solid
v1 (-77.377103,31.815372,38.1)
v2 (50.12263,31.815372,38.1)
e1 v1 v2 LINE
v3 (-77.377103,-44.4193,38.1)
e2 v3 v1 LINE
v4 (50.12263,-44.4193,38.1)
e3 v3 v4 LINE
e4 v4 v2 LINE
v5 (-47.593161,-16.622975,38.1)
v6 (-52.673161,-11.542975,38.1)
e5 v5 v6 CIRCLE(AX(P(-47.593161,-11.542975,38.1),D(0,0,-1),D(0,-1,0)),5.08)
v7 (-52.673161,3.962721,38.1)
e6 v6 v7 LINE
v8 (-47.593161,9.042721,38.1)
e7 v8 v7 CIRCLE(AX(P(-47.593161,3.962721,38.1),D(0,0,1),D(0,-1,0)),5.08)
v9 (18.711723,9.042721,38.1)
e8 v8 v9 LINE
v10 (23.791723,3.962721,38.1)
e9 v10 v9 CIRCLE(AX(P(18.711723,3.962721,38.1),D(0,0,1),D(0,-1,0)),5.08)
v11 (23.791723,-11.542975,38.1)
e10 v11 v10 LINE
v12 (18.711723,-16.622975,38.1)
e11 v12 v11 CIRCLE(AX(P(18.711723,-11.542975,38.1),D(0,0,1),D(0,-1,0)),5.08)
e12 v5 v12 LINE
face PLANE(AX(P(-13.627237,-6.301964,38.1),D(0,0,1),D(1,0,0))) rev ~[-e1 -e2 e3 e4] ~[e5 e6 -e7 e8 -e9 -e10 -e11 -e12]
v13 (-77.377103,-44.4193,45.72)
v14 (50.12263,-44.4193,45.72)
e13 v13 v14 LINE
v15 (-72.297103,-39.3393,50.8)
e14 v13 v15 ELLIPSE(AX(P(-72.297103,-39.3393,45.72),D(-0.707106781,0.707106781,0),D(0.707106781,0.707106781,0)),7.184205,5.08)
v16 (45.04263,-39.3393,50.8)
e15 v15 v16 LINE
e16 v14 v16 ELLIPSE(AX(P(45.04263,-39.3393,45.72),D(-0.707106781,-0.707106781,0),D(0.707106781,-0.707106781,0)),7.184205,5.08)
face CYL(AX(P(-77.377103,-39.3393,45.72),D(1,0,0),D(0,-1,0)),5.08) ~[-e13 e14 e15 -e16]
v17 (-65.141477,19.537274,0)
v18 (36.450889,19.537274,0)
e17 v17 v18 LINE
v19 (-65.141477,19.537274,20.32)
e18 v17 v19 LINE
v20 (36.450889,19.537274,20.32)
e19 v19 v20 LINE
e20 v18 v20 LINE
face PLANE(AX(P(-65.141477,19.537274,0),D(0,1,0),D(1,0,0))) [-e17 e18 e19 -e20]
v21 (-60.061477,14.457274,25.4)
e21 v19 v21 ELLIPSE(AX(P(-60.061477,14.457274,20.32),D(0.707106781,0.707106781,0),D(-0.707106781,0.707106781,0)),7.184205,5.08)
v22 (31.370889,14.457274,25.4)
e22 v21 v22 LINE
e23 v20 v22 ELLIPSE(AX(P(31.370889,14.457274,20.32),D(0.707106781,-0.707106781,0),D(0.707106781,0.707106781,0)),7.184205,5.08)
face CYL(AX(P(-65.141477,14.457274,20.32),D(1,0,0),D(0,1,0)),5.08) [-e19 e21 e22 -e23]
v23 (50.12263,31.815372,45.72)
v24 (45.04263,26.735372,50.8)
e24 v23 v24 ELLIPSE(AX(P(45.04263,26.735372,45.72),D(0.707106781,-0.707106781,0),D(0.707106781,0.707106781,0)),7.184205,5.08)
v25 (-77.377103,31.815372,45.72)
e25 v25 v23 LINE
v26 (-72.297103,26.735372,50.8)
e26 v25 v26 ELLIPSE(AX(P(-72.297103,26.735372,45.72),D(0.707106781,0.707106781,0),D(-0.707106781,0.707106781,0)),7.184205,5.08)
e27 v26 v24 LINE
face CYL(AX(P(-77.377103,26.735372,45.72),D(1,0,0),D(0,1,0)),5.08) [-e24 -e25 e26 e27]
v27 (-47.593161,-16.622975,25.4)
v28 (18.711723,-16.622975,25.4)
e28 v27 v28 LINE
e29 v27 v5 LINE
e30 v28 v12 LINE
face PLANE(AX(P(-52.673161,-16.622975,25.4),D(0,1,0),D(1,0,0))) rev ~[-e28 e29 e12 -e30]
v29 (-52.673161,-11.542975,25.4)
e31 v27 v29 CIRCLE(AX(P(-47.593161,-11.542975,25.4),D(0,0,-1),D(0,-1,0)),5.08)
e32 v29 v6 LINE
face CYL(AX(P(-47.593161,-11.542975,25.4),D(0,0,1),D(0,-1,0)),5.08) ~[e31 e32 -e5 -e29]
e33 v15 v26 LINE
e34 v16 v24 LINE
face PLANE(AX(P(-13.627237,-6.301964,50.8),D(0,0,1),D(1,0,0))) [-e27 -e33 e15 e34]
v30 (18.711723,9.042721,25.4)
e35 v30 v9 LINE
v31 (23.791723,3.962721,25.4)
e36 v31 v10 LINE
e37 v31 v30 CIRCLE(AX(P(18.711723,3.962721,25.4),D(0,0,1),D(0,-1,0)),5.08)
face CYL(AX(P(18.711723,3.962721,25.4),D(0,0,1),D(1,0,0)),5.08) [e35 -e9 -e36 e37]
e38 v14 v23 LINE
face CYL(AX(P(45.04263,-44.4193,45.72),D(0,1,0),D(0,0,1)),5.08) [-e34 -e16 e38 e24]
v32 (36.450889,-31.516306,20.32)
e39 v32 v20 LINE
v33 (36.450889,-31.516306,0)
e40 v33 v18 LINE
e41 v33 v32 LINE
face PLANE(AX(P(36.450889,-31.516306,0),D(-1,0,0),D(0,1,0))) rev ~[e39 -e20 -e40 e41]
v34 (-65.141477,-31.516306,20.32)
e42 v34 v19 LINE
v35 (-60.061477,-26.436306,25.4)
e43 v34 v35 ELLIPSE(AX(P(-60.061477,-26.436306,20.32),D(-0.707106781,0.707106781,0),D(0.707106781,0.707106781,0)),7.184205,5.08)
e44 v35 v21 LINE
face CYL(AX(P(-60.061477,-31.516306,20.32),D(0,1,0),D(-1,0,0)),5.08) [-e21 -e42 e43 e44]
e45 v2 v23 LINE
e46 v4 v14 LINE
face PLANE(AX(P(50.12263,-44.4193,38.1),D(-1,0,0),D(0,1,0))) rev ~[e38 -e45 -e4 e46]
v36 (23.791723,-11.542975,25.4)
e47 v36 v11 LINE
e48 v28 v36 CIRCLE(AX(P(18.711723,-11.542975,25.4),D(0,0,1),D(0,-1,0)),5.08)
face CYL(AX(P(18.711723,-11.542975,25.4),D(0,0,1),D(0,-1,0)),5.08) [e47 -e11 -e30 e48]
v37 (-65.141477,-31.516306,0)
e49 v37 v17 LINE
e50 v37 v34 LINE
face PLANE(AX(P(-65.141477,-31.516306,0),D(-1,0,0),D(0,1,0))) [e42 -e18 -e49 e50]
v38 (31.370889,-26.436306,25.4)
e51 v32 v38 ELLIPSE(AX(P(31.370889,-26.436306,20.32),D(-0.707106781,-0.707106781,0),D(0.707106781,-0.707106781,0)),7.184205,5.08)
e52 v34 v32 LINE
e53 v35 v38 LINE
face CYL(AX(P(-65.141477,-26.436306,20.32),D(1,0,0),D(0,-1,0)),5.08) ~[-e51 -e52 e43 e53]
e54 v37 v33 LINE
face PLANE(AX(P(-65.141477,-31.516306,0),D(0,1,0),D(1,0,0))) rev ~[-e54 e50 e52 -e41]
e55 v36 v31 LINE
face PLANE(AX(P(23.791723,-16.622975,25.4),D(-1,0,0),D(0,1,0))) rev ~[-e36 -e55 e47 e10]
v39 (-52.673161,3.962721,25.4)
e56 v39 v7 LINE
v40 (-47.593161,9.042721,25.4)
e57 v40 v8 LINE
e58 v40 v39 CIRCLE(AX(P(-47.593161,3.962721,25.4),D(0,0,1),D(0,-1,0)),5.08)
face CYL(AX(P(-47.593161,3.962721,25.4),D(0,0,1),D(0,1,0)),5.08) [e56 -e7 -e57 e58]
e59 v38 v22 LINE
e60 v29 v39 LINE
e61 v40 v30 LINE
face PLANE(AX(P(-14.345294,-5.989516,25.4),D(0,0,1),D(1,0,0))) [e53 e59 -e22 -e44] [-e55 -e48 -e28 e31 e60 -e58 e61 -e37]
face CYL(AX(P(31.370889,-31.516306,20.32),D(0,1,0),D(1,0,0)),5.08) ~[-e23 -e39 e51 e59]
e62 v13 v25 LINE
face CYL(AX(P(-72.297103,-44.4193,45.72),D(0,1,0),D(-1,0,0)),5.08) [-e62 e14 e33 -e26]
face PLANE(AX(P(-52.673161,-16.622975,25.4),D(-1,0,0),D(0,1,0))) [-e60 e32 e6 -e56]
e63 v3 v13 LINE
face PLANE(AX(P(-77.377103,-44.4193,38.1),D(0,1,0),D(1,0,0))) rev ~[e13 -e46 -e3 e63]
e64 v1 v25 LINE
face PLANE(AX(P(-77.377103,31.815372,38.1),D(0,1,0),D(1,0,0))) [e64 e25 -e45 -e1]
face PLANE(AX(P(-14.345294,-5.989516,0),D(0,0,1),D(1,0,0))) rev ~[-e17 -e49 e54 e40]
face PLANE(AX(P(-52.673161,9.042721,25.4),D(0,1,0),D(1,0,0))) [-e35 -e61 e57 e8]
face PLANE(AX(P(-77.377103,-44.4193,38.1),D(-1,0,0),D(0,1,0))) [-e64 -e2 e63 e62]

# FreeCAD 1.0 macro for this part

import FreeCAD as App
import Part
import Sketcher
Q = App.Units.Quantity


def edges_at(feature, points):
    """Names of the edges that pass closest to the given points."""
    edges = feature.Shape.Edges
    near = lambda p: min(range(len(edges)), key=lambda i: edges[i].distToShape(Part.Vertex(*p))[0])
    return sorted({f"Edge{near(p) + 1}" for p in points})


def add_polygon(sketch, points):
    """Adds a closed chain of lines whose ends are joined by coincident constraints."""
    first, n = sketch.GeometryCount, len(points)
    for a, b in zip(points, points[1:] + points[:1]):
        sketch.addGeometry(Part.LineSegment(App.Vector(*a, 0), App.Vector(*b, 0)), False)
    for i in range(n):
        sketch.addConstraint(Sketcher.Constraint("Coincident", first + i, 2, first + (i + 1) % n, 1))

doc = App.newDocument("Part")
body = doc.addObject("PartDesign::Body", "Body")

# Sketch on XY plane
sketch1 = doc.addObject("Sketcher::SketchObject", "Sketch")
body.addObject(sketch1)
sketch1.AttachmentSupport = (doc.XY_Plane, [""])
sketch1.MapMode = "FlatFace"
add_polygon(sketch1, [(-65, 20), (-65, -32), (36, -32), (36, 20)])  # lines 0-3
sketch1.addConstraint(Sketcher.Constraint("Vertical", 0))
sketch1.addConstraint(Sketcher.Constraint("Horizontal", 1))
sketch1.addConstraint(Sketcher.Constraint("Vertical", 2))
sketch1.addConstraint(Sketcher.Constraint("Horizontal", 3))
sketch1.addConstraint(Sketcher.Constraint("DistanceY", 0, 2, 0, 1, 51.05358))
sketch1.addConstraint(Sketcher.Constraint("DistanceX", 1, 1, 1, 2, 101.592366))
sketch1.addConstraint(Sketcher.Constraint("DistanceX", -1, 1, 1, 2, 36.450889))
sketch1.addConstraint(Sketcher.Constraint("DistanceY", 0, 2, -1, 1, 31.516306))
pad1 = doc.addObject("PartDesign::Pad", "Pad")
body.addObject(pad1)
pad1.Profile = sketch1
pad1.Length = Q("1 in")
doc.recompute()

fillet = doc.addObject("PartDesign::Fillet", "Fillet")
body.addObject(fillet)
fillet.Base = (pad1, edges_at(pad1, [
    (-14.345, -31.516, 25.4),
    (-65.141, -5.99, 25.4),
    (-14.345, 19.537, 25.4),
    (36.451, -5.99, 25.4),
]))
fillet.Radius = Q("0.2 in")

# Sketch on XY plane
sketch2 = doc.addObject("Sketcher::SketchObject", "Sketch001")
body.addObject(sketch2)
sketch2.AttachmentSupport = (doc.XY_Plane, [""])
sketch2.MapMode = "FlatFace"
sketch2.AttachmentOffset = App.Placement(App.Vector(0, 0, 1 * 25.4), App.Rotation())
add_polygon(sketch2, [(-53, 9), (-53, -17), (24, -17), (24, 9)])  # lines 0-3
sketch2.addConstraint(Sketcher.Constraint("Vertical", 0))
sketch2.addConstraint(Sketcher.Constraint("Horizontal", 1))
sketch2.addConstraint(Sketcher.Constraint("Vertical", 2))
sketch2.addConstraint(Sketcher.Constraint("Horizontal", 3))
sketch2.addConstraint(Sketcher.Constraint("DistanceX", 1, 1, 1, 2, 76.464884))
sketch2.addConstraint(Sketcher.Constraint("DistanceY", 0, 2, 0, 1, 25.665697))
sketch2.addConstraint(Sketcher.Constraint("DistanceX", 0, 2, -1, 1, 52.673161))
sketch2.addConstraint(Sketcher.Constraint("DistanceY", -1, 1, 2, 2, 9.042721))
pad2 = doc.addObject("PartDesign::Pad", "Pad001")
body.addObject(pad2)
pad2.Profile = sketch2
pad2.Length = Q("0.5 in")
doc.recompute()

fillet2 = doc.addObject("PartDesign::Fillet", "Fillet001")
body.addObject(fillet2)
fillet2.Base = (pad2, edges_at(pad2, [
    (-52.673, -16.623, 31.75),
    (23.792, -16.623, 31.75),
    (-52.673, 9.043, 31.75),
    (23.792, 9.043, 31.75),
]))
fillet2.Radius = Q("0.2 in")

# Sketch on XY plane
sketch3 = doc.addObject("Sketcher::SketchObject", "Sketch002")
body.addObject(sketch3)
sketch3.AttachmentSupport = (doc.XY_Plane, [""])
sketch3.MapMode = "FlatFace"
sketch3.AttachmentOffset = App.Placement(App.Vector(0, 0, 1.5 * 25.4), App.Rotation())
add_polygon(sketch3, [(-77, 32), (-77, -44), (50, -44), (50, 32)])  # lines 0-3
sketch3.addConstraint(Sketcher.Constraint("Vertical", 0))
sketch3.addConstraint(Sketcher.Constraint("Horizontal", 1))
sketch3.addConstraint(Sketcher.Constraint("Vertical", 2))
sketch3.addConstraint(Sketcher.Constraint("Horizontal", 3))
sketch3.addConstraint(Sketcher.Constraint("DistanceY", 0, 2, -1, 1, 44.4193))
sketch3.addConstraint(Sketcher.Constraint("DistanceX", 1, 1, 1, 2, 127.499733))
sketch3.addConstraint(Sketcher.Constraint("DistanceY", 0, 2, 0, 1, 76.234672))
sketch3.addConstraint(Sketcher.Constraint("DistanceX", -1, 1, 1, 2, 50.12263))
pad3 = doc.addObject("PartDesign::Pad", "Pad002")
body.addObject(pad3)
pad3.Profile = sketch3
pad3.Length = Q("0.5 in")
doc.recompute()

fillet3 = doc.addObject("PartDesign::Fillet", "Fillet002")
body.addObject(fillet3)
fillet3.Base = (pad3, edges_at(pad3, [
    (-13.627, -44.419, 50.8),
    (-77.377, -6.302, 50.8),
    (-13.627, 31.815, 50.8),
    (50.123, -6.302, 50.8),
]))
fillet3.Radius = Q("0.2 in")

doc.recompute()
